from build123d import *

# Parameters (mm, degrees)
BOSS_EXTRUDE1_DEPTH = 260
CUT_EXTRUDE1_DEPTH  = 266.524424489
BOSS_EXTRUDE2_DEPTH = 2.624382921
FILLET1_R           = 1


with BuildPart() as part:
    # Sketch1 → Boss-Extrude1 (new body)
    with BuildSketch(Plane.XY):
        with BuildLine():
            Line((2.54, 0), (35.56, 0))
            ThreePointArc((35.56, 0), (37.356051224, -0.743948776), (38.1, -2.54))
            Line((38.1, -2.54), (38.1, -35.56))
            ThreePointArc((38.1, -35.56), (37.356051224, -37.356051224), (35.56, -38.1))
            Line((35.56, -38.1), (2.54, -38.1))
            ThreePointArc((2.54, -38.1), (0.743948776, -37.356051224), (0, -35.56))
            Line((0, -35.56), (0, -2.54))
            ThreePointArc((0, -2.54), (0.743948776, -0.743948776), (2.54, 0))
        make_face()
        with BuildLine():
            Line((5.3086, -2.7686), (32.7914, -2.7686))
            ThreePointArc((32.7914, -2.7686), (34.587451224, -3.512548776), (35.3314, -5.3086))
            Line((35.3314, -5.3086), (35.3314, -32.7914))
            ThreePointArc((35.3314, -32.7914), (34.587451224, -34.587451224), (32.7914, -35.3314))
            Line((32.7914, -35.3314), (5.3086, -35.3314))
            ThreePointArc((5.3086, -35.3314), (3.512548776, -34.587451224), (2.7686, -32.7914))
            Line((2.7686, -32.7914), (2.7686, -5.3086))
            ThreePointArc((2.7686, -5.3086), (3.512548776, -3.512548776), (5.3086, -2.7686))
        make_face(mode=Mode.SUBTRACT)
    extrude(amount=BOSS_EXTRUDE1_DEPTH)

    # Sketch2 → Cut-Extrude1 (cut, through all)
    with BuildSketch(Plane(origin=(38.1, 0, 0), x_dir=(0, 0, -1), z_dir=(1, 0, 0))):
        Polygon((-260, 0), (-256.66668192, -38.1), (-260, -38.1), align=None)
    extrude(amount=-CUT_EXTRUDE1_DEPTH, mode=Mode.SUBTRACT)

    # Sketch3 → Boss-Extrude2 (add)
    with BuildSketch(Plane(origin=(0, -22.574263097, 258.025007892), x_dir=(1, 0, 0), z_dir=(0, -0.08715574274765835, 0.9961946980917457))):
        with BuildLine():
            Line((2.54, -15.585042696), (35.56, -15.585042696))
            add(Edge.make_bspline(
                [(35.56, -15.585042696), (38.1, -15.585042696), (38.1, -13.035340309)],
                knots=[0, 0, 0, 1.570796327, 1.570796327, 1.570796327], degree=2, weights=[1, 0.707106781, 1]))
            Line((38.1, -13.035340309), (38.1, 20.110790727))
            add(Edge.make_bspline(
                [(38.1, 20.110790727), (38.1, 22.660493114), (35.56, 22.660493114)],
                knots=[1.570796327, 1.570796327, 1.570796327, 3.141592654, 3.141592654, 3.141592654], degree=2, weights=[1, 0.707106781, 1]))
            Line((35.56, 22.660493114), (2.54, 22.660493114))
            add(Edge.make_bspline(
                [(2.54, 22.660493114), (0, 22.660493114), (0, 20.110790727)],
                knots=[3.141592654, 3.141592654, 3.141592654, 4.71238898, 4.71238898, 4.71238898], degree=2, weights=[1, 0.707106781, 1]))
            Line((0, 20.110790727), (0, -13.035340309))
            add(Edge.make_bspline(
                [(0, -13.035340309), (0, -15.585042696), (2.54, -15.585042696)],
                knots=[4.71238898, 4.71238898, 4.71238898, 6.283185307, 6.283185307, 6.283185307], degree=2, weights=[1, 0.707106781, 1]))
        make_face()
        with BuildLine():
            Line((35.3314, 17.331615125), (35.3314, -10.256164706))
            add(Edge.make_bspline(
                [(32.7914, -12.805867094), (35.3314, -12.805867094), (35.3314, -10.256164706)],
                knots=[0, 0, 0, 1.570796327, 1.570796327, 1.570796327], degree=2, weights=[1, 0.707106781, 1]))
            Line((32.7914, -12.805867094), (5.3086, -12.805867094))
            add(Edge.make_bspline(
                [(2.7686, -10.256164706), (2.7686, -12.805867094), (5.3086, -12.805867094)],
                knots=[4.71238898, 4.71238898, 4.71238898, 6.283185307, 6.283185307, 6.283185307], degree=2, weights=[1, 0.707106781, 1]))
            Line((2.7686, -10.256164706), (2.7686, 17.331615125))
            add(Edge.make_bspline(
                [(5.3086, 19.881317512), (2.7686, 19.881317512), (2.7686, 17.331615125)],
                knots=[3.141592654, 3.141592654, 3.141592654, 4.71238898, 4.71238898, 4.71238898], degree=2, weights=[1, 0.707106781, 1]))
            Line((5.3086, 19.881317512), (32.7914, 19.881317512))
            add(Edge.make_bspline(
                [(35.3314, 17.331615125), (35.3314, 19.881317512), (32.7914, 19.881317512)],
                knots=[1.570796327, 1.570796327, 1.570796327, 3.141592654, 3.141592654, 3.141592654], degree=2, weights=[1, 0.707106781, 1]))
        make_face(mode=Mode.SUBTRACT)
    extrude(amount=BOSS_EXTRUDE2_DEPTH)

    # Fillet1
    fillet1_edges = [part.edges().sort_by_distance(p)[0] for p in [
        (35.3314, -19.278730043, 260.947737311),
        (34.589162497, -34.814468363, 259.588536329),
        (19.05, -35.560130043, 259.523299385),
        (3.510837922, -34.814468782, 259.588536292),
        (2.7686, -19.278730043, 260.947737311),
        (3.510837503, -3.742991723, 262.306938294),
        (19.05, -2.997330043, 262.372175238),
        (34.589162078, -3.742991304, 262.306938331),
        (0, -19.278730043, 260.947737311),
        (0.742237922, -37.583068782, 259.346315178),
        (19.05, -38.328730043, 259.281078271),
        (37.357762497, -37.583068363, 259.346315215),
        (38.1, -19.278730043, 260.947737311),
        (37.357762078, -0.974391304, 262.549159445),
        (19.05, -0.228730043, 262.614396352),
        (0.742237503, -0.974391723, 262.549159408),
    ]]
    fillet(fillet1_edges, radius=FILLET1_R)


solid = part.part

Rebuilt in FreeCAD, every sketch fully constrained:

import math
import FreeCAD as App
import Part
import Sketcher

V = App.Vector
Q = App.Units.Quantity


def edges_at(feature, points):
    """Names of the edges that pass closest to the given points."""
    edges = feature.Shape.Edges
    near = lambda p: min(range(len(edges)), key=lambda i: edges[i].distToShape(Part.Vertex(*p))[0])
    return sorted({f"Edge{near(p) + 1}" for p in points})


def add_polygon(sketch, points):
    """Adds a closed chain of lines whose ends are joined by coincident constraints."""
    first, n = sketch.GeometryCount, len(points)
    for a, b in zip(points, points[1:] + points[:1]):
        sketch.addGeometry(Part.LineSegment(App.Vector(*a, 0), App.Vector(*b, 0)), False)
    for i in range(n):
        sketch.addConstraint(Sketcher.Constraint("Coincident", first + i, 2, first + (i + 1) % n, 1))

doc = App.newDocument("Part")
body = doc.addObject("PartDesign::Body", "Body")

sketch1 = body.newObject("Sketcher::SketchObject", "Sketch")
sketch1.AttachmentSupport = (doc.getObject("XY_Plane"), [""])
sketch1.MapMode = "FlatFace"
sketch1.addGeometry([
    Part.LineSegment(V(35.6, 0, 0), V(2.5, 0, 0)),
    Part.ArcOfCircle(Part.Circle(V(2.5, -2.5, 0), V(0, 0, 1), 2.5), math.radians(90), math.radians(180)),
    Part.LineSegment(V(0, -2.5, 0), V(0, -35.6, 0)),
    Part.ArcOfCircle(Part.Circle(V(2.5, -35.6, 0), V(0, 0, 1), 2.5), math.radians(-180), math.radians(-90)),
    Part.LineSegment(V(2.5, -38.1, 0), V(35.6, -38.1, 0)),
    Part.ArcOfCircle(Part.Circle(V(35.6, -35.6, 0), V(0, 0, 1), 2.5), math.radians(-90), math.radians(0)),
    Part.LineSegment(V(38.1, -35.6, 0), V(38.1, -2.5, 0)),
    Part.ArcOfCircle(Part.Circle(V(35.6, -2.5, 0), V(0, 0, 1), 2.5), math.radians(0), math.radians(90)),
    Part.LineSegment(V(5.3, -2.8, 0), V(32.8, -2.8, 0)),
    Part.ArcOfCircle(Part.Circle(V(32.8, -5.3, 0), V(0, 0, 1), 2.5), math.radians(0), math.radians(90)),
    Part.LineSegment(V(35.3, -5.3, 0), V(35.3, -32.8, 0)),
    Part.ArcOfCircle(Part.Circle(V(32.8, -32.8, 0), V(0, 0, 1), 2.5), math.radians(-90), math.radians(0)),
    Part.LineSegment(V(32.8, -35.3, 0), V(5.3, -35.3, 0)),
    Part.ArcOfCircle(Part.Circle(V(5.3, -32.8, 0), V(0, 0, 1), 2.5), math.radians(-180), math.radians(-90)),
    Part.LineSegment(V(2.8, -32.8, 0), V(2.8, -5.3, 0)),
    Part.ArcOfCircle(Part.Circle(V(5.3, -5.3, 0), V(0, 0, 1), 2.5), math.radians(90), math.radians(180)),
], False)
sketch1.addConstraint([
    Sketcher.Constraint("Tangent", 0, 2, 1, 1),
    Sketcher.Constraint("Tangent", 1, 2, 2, 1),
    Sketcher.Constraint("Tangent", 2, 2, 3, 1),
    Sketcher.Constraint("Tangent", 3, 2, 4, 1),
    Sketcher.Constraint("Tangent", 4, 2, 5, 1),
    Sketcher.Constraint("Tangent", 5, 2, 6, 1),
    Sketcher.Constraint("Tangent", 6, 2, 7, 1),
    Sketcher.Constraint("Tangent", 7, 2, 0, 1),
    Sketcher.Constraint("Tangent", 8, 2, 9, 2),
    Sketcher.Constraint("Tangent", 9, 1, 10, 1),
    Sketcher.Constraint("Tangent", 10, 2, 11, 2),
    Sketcher.Constraint("Tangent", 11, 1, 12, 1),
    Sketcher.Constraint("Tangent", 12, 2, 13, 2),
    Sketcher.Constraint("Tangent", 13, 1, 14, 1),
    Sketcher.Constraint("Tangent", 14, 2, 15, 2),
    Sketcher.Constraint("Tangent", 15, 1, 8, 1),
    Sketcher.Constraint("Horizontal", 0),
    Sketcher.Constraint("Vertical", 2),
    Sketcher.Constraint("Horizontal", 4),
    Sketcher.Constraint("Vertical", 6),
    Sketcher.Constraint("Horizontal", 8),
    Sketcher.Constraint("Vertical", 10),
    Sketcher.Constraint("Horizontal", 12),
    Sketcher.Constraint("Vertical", 14),
    Sketcher.Constraint("Equal", 1, 3),
    Sketcher.Constraint("Equal", 3, 5),
    Sketcher.Constraint("Equal", 5, 7),
    Sketcher.Constraint("Equal", 7, 9),
    Sketcher.Constraint("Equal", 9, 11),
    Sketcher.Constraint("Equal", 11, 13),
    Sketcher.Constraint("Equal", 13, 15),
    Sketcher.Constraint("PointOnObject", 0, 2, -1),
    Sketcher.Constraint("PointOnObject", 1, 2, -2),
    Sketcher.Constraint("Equal", 4, 2),
    Sketcher.Constraint("Equal", 12, 10),
    Sketcher.Constraint("Radius", 1, Q("0.1 in")),
    Sketcher.Constraint("DistanceX", 0, 2, 0, 1, Q("1.3 in")),
    Sketcher.Constraint("DistanceX", 8, 1, 8, 2, Q("1.082 in")),
    Sketcher.Constraint("DistanceX", -1, 1, 9, 3, Q("1.291 in")),
    Sketcher.Constraint("DistanceY", 9, 3, -1, 1, Q("0.209 in")),
])
pad1 = body.newObject("PartDesign::Pad", "Pad")
pad1.Profile = sketch1
pad1.Length = 260

sketch2 = body.newObject("Sketcher::SketchObject", "Sketch001")
sketch2.AttachmentSupport = (doc.getObject("YZ_Plane"), [""])
sketch2.MapMode = "FlatFace"
sketch2.AttachmentOffset = App.Placement(V(0, 0, 1.5 * 25.4), App.Rotation())
add_polygon(sketch2, [(-38.1, 256.7), (0, 260), (-38.1, 260)])
sketch2.addConstraint([
    Sketcher.Constraint("Horizontal", 1),
    Sketcher.Constraint("Vertical", 2),
    Sketcher.Constraint("PointOnObject", 0, 2, -2),
    Sketcher.Constraint("DistanceX", 1, 2, 1, 1, Q("1.5 in")),
    Sketcher.Constraint("Angle", 0, Q("5 deg")),
    Sketcher.Constraint("DistanceY", -1, 1, 0, 2, 260.0),
])
pocket1 = body.newObject("PartDesign::Pocket", "Pocket")
pocket1.Profile = sketch2
pocket1.Type = "ThroughAll"

sketch3 = body.newObject("Sketcher::SketchObject", "Sketch002")
sketch3.Placement = App.Placement(V(0, -22.574263, 258.025008), App.Rotation(V(1, 0, 0), V(0, 0.996194698, 0.087155743), V(0, -0.087155743, 0.996194698), "ZXY"))
sketch3.addGeometry([
    Part.LineSegment(V(2.54, -15.585043, 0), V(35.56, -15.585043, 0)),
    Part.BSplineCurve([V(35.56, -15.585043, 0), V(38.1, -15.585043, 0), V(38.1, -13.03534, 0)], [3, 3], [0, 1.570796327], False, 2, [1, 0.707106781, 1], False),
    Part.LineSegment(V(38.1, -13.03534, 0), V(38.1, 20.110791, 0)),
    Part.BSplineCurve([V(38.1, 20.110791, 0), V(38.1, 22.660493, 0), V(35.56, 22.660493, 0)], [3, 3], [1.570796327, 3.141592654], False, 2, [1, 0.707106781, 1], False),
    Part.LineSegment(V(35.56, 22.660493, 0), V(2.54, 22.660493, 0)),
    Part.BSplineCurve([V(2.54, 22.660493, 0), V(0, 22.660493, 0), V(0, 20.110791, 0)], [3, 3], [3.141592654, 4.71238898], False, 2, [1, 0.707106781, 1], False),
    Part.LineSegment(V(0, 20.110791, 0), V(0, -13.03534, 0)),
    Part.BSplineCurve([V(0, -13.03534, 0), V(0, -15.585043, 0), V(2.54, -15.585043, 0)], [3, 3], [4.71238898, 6.283185307], False, 2, [1, 0.707106781, 1], False),
    Part.BSplineCurve([V(35.3314, 17.331615, 0), V(35.3314, 19.881318, 0), V(32.7914, 19.881318, 0)], [3, 3], [1.570796327, 3.141592654], False, 2, [1, 0.707106781, 1], False),
    Part.LineSegment(V(35.3314, 17.331615, 0), V(35.3314, -10.256165, 0)),
    Part.BSplineCurve([V(32.7914, -12.805867, 0), V(35.3314, -12.805867, 0), V(35.3314, -10.256165, 0)], [3, 3], [0, 1.570796327], False, 2, [1, 0.707106781, 1], False),
    Part.LineSegment(V(32.7914, -12.805867, 0), V(5.3086, -12.805867, 0)),
    Part.BSplineCurve([V(2.7686, -10.256165, 0), V(2.7686, -12.805867, 0), V(5.3086, -12.805867, 0)], [3, 3], [4.71238898, 6.283185307], False, 2, [1, 0.707106781, 1], False),
    Part.LineSegment(V(2.7686, -10.256165, 0), V(2.7686, 17.331615, 0)),
    Part.BSplineCurve([V(5.3086, 19.881318, 0), V(2.7686, 19.881318, 0), V(2.7686, 17.331615, 0)], [3, 3], [3.141592654, 4.71238898], False, 2, [1, 0.707106781, 1], False),
    Part.LineSegment(V(5.3086, 19.881318, 0), V(32.7914, 19.881318, 0)),
], False)
sketch3.addConstraint([
    Sketcher.Constraint("Block", 1),
    Sketcher.Constraint("Block", 3),
    Sketcher.Constraint("Block", 5),
    Sketcher.Constraint("Block", 7),
    Sketcher.Constraint("Block", 8),
    Sketcher.Constraint("Block", 10),
    Sketcher.Constraint("Block", 12),
    Sketcher.Constraint("Block", 14),
    Sketcher.Constraint("Coincident", 0, 2, 1, 1),
    Sketcher.Constraint("Coincident", 1, 2, 2, 1),
    Sketcher.Constraint("Coincident", 2, 2, 3, 1),
    Sketcher.Constraint("Coincident", 3, 2, 4, 1),
    Sketcher.Constraint("Coincident", 4, 2, 5, 1),
    Sketcher.Constraint("Coincident", 5, 2, 6, 1),
    Sketcher.Constraint("Coincident", 6, 2, 7, 1),
    Sketcher.Constraint("Coincident", 7, 2, 0, 1),
    Sketcher.Constraint("Coincident", 8, 1, 9, 1),
    Sketcher.Constraint("Coincident", 9, 2, 10, 2),
    Sketcher.Constraint("Coincident", 10, 1, 11, 1),
    Sketcher.Constraint("Coincident", 11, 2, 12, 2),
    Sketcher.Constraint("Coincident", 12, 1, 13, 1),
    Sketcher.Constraint("Coincident", 13, 2, 14, 2),
    Sketcher.Constraint("Coincident", 14, 1, 15, 1),
    Sketcher.Constraint("Coincident", 15, 2, 8, 2),
])
pad2 = body.newObject("PartDesign::Pad", "Pad001")
pad2.Profile = sketch3
pad2.Length = 2.624383
doc.recompute()

fillet = body.newObject("PartDesign::Fillet", "Fillet")
fillet.Base = (pad2, edges_at(pad2, [
    (35.331, -19.279, 260.948),
    (34.589, -34.814, 259.589),
    (19.05, -35.56, 259.523),
    (3.511, -34.814, 259.589),
    (2.769, -19.279, 260.948),
    (3.511, -3.743, 262.307),
    (19.05, -2.997, 262.372),
    (34.589, -3.743, 262.307),
    (0, -19.279, 260.948),
    (0.742, -37.583, 259.346),
    (19.05, -38.329, 259.281),
    (37.358, -37.583, 259.346),
    (38.1, -19.279, 260.948),
    (37.358, -0.974, 262.549),
    (19.05, -0.229, 262.614),
    (0.742, -0.974, 262.549),
]))
fillet.Radius = 1

doc.recompute()
